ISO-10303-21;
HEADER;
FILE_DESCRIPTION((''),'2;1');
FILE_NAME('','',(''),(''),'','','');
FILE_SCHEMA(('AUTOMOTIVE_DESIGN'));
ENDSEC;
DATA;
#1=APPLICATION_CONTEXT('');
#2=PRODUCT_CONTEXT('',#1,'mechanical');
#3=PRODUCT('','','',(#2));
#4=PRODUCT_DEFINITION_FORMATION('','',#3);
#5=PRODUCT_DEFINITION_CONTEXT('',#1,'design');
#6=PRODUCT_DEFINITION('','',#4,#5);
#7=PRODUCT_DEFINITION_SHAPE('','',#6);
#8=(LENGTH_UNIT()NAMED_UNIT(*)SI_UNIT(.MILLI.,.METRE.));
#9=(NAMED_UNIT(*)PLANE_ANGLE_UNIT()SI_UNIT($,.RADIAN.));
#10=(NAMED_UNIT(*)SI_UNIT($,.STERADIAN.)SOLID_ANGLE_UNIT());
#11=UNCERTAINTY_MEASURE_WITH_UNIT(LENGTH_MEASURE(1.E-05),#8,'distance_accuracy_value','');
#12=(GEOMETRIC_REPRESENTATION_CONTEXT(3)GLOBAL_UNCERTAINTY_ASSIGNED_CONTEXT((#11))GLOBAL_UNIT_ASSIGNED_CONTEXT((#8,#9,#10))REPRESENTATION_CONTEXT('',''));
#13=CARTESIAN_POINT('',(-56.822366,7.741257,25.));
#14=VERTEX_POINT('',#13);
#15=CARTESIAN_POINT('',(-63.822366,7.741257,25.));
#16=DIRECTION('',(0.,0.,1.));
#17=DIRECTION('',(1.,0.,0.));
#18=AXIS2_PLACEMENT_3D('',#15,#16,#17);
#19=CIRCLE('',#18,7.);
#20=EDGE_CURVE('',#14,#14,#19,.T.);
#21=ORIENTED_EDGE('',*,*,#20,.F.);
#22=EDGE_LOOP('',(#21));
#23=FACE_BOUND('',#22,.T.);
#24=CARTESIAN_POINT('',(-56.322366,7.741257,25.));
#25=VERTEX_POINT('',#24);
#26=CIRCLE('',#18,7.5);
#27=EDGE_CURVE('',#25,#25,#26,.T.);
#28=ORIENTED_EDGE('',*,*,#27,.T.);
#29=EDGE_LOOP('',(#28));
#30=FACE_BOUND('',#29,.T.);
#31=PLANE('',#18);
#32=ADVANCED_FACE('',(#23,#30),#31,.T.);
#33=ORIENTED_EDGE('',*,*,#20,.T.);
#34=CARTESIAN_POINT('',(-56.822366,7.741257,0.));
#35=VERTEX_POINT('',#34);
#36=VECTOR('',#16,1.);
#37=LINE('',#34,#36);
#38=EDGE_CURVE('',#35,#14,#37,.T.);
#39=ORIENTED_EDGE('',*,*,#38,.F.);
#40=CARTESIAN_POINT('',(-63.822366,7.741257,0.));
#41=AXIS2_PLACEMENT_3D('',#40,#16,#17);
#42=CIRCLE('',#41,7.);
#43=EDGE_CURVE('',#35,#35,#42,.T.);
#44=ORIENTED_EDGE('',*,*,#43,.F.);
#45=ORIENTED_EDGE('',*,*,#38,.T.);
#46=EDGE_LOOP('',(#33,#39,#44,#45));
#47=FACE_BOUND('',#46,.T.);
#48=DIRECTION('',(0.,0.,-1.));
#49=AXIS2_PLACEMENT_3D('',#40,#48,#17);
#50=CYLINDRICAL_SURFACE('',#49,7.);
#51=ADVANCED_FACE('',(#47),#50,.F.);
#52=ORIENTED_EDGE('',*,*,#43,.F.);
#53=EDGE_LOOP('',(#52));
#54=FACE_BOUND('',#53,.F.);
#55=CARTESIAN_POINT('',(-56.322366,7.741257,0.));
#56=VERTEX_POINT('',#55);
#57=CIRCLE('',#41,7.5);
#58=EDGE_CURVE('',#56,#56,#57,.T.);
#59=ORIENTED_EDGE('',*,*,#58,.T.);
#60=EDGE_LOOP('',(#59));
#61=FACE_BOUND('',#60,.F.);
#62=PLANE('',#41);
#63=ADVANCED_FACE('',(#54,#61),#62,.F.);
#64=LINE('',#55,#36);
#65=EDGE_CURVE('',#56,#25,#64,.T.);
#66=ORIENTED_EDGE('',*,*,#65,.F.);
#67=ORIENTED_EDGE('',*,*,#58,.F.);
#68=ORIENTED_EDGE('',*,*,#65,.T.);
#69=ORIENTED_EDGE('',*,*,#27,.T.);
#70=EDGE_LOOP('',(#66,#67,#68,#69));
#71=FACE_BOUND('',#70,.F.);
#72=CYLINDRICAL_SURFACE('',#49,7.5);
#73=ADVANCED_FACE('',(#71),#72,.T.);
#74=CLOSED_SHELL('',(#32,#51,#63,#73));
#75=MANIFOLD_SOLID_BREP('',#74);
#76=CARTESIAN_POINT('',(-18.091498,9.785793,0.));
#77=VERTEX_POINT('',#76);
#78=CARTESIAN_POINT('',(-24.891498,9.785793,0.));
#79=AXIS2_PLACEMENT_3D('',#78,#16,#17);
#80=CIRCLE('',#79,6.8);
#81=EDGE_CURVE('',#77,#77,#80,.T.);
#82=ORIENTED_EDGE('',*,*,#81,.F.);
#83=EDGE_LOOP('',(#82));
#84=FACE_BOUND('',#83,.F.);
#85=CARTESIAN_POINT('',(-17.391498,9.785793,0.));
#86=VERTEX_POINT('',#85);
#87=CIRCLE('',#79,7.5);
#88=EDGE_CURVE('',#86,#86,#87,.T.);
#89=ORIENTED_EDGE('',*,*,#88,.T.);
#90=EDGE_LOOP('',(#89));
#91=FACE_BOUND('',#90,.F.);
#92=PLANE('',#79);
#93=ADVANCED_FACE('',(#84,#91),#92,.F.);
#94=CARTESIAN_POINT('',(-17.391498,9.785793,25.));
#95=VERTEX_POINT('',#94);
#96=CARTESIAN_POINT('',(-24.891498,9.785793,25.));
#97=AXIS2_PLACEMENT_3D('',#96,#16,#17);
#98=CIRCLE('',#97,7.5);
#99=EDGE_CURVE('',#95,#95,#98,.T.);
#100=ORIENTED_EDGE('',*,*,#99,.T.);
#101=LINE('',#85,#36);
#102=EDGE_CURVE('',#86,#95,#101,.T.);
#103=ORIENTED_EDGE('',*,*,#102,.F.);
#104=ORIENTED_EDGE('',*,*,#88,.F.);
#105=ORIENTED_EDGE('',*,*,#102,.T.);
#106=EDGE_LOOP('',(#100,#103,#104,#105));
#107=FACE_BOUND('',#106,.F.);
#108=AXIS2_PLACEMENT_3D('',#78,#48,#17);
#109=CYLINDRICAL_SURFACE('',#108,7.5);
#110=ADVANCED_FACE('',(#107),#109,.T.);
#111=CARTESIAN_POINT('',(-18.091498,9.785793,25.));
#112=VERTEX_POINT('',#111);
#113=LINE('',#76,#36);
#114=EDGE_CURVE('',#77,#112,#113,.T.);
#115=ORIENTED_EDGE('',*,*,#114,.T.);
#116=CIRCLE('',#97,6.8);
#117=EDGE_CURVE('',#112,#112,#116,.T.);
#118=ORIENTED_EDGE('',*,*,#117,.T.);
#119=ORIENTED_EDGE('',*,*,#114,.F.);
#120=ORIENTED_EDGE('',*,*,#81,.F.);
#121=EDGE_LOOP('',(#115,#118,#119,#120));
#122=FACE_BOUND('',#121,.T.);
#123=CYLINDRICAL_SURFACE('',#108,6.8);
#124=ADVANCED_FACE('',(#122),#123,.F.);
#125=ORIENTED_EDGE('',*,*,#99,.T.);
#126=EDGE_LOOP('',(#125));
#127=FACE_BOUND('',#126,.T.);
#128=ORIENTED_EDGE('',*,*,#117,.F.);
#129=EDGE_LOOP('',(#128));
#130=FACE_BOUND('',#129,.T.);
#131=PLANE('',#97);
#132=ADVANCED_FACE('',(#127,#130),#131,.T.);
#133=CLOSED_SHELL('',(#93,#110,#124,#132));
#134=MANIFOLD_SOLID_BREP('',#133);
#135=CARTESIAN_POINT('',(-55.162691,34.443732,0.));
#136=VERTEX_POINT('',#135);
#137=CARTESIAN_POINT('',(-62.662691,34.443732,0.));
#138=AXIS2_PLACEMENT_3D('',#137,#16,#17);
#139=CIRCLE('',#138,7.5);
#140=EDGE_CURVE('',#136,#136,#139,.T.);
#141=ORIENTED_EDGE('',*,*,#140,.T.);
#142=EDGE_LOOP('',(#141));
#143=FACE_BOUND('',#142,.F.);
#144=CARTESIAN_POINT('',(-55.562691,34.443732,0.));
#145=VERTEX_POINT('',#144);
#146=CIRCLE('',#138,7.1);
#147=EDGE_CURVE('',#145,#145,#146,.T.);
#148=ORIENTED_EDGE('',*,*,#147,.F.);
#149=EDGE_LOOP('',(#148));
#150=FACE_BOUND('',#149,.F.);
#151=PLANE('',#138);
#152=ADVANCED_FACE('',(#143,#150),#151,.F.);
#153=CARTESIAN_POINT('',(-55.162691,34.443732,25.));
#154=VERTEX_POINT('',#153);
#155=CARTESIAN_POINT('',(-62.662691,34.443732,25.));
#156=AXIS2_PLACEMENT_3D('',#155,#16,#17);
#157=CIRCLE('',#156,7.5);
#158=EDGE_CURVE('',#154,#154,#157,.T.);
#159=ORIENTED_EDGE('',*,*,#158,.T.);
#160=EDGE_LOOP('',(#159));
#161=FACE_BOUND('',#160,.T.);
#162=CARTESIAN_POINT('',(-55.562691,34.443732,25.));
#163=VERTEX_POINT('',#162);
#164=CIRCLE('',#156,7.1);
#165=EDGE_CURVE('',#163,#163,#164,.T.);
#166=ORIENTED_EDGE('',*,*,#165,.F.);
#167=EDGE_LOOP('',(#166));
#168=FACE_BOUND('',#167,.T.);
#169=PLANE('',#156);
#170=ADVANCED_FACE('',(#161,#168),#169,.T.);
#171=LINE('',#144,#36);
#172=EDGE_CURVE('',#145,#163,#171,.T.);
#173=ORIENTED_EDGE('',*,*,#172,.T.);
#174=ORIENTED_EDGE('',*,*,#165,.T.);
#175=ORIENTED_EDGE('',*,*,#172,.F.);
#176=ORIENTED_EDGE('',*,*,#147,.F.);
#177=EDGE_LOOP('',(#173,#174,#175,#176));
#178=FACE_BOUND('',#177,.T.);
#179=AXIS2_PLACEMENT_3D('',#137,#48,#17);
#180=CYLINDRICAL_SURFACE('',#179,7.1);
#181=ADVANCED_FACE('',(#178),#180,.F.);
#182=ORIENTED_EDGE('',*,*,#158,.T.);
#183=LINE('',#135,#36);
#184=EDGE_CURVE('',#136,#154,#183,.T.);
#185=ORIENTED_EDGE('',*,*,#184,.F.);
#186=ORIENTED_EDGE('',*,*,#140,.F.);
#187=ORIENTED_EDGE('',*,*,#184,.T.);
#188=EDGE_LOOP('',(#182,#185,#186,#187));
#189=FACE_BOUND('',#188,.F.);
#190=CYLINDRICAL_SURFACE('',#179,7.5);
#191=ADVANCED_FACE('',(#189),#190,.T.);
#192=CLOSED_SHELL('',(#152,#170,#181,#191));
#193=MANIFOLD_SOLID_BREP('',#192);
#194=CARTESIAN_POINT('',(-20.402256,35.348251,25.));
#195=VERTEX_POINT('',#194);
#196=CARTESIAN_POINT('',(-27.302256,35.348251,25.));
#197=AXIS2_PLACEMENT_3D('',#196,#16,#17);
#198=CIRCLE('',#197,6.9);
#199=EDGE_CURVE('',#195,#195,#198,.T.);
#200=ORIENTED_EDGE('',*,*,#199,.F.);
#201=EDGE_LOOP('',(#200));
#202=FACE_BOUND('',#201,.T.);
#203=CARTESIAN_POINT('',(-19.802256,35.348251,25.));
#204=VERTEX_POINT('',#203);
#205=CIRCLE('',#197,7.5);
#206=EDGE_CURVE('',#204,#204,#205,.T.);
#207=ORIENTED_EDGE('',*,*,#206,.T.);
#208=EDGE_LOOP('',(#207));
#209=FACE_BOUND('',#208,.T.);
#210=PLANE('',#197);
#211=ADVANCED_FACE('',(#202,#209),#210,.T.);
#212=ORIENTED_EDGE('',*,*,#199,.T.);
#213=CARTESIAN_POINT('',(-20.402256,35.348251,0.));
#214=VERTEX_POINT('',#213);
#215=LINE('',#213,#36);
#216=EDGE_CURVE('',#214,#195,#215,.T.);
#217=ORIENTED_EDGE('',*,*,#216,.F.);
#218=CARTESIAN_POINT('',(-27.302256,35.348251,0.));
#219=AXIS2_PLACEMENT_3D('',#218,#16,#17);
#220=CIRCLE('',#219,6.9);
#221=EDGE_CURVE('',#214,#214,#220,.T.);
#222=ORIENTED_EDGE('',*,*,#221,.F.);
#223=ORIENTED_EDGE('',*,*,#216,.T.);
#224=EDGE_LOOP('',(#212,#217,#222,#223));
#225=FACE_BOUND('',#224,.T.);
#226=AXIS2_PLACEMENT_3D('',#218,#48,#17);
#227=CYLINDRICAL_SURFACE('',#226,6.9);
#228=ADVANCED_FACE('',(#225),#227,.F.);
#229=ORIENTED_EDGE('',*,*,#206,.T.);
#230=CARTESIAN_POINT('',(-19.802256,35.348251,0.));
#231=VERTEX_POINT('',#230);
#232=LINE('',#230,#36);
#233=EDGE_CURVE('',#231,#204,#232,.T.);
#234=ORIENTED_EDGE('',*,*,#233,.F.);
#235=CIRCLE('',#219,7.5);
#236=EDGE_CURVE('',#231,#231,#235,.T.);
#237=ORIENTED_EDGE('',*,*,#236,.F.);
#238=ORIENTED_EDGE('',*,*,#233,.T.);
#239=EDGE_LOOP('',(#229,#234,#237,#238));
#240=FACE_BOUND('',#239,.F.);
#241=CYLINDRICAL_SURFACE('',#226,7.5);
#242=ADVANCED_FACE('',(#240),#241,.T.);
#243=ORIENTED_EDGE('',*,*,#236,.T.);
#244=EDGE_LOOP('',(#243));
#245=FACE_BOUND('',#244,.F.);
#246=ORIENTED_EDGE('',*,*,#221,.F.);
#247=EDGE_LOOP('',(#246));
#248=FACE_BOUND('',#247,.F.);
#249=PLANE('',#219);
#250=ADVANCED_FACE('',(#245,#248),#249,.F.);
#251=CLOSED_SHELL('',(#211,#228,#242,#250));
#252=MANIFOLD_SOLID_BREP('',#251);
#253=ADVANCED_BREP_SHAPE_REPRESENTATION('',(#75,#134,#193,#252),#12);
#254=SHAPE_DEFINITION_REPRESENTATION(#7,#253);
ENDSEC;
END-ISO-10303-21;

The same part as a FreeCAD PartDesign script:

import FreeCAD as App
import Part
import Sketcher

doc = App.newDocument("Part")
body = doc.addObject("PartDesign::Body", "Body")
body.AllowCompound = True

# Sketch on XY plane
sketch1 = doc.addObject("Sketcher::SketchObject", "Sketch")
body.addObject(sketch1)
sketch1.AttachmentSupport = (doc.XY_Plane, [""])
sketch1.MapMode = "FlatFace"
sketch1.addGeometry([
    Part.Circle(App.Vector(-62.662691, 34.443732, 0), App.Vector(0, 0, 1), 7.5),  # 0
    Part.Circle(App.Vector(-62.662691, 34.443732, 0), App.Vector(0, 0, 1), 7.1),  # 1
    Part.Circle(App.Vector(-63.822366, 7.741257, 0), App.Vector(0, 0, 1), 7.5),  # 2
    Part.Circle(App.Vector(-63.822366, 7.741257, 0), App.Vector(0, 0, 1), 7),  # 3
    Part.Circle(App.Vector(-27.302256, 35.348251, 0), App.Vector(0, 0, 1), 7.5),  # 4
    Part.Circle(App.Vector(-27.302256, 35.348251, 0), App.Vector(0, 0, 1), 6.9),  # 5
    Part.Circle(App.Vector(-24.891498, 9.785793, 0), App.Vector(0, 0, 1), 7.5),  # 6
    Part.Circle(App.Vector(-24.891498, 9.785793, 0), App.Vector(0, 0, 1), 6.8),  # 7
], False)
sketch1.addConstraint([
    Sketcher.Constraint("Coincident", 1, 3, 0, 3),
    Sketcher.Constraint("Coincident", 3, 3, 2, 3),
    Sketcher.Constraint("Coincident", 5, 3, 4, 3),
    Sketcher.Constraint("Coincident", 7, 3, 6, 3),
    Sketcher.Constraint("Equal", 0, 2),
    Sketcher.Constraint("Equal", 2, 4),
    Sketcher.Constraint("Equal", 4, 6),
    Sketcher.Constraint("Diameter", 0, 15.0),
    Sketcher.Constraint("Diameter", 3, 14.0),
    Sketcher.Constraint("Diameter", 1, 14.2),
    Sketcher.Constraint("Diameter", 5, 13.8),
    Sketcher.Constraint("Diameter", 7, 13.6),
    Sketcher.Constraint("DistanceX", 0, 3, -1, 1, 62.662691),
    Sketcher.Constraint("DistanceY", -1, 1, 0, 3, 34.443732),
    Sketcher.Constraint("DistanceY", -1, 1, 4, 3, 35.348251),
    Sketcher.Constraint("DistanceX", 2, 3, 4, 3, 36.52011),
    Sketcher.Constraint("DistanceX", 4, 3, 6, 3, 2.410758),
    Sketcher.Constraint("DistanceY", 6, 3, 0, 3, 24.657939),
    Sketcher.Constraint("DistanceX", 2, 3, -1, 1, 63.822366),
    Sketcher.Constraint("DistanceY", -1, 1, 2, 3, 7.741257),
])
pad1 = doc.addObject("PartDesign::Pad", "Pad")
body.addObject(pad1)
pad1.Profile = sketch1
pad1.Length = 25

doc.recompute()
